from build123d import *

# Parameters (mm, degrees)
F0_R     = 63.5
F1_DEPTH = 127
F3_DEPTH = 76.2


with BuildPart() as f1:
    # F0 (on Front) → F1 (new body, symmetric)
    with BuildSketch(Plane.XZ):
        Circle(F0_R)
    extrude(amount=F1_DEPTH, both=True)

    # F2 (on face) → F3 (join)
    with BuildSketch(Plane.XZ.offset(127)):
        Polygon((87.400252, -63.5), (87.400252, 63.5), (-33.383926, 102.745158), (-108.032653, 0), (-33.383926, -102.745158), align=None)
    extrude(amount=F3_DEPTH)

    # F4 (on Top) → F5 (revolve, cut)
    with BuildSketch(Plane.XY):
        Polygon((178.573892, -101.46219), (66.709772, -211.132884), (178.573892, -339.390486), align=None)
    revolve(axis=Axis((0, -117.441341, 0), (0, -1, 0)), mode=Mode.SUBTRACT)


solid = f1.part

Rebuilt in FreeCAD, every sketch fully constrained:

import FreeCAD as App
import Part
import Sketcher
from FreeCAD import Vector
Q = App.Units.Quantity

doc = App.newDocument("Part")
body = doc.addObject("PartDesign::Body", "Body")

# Sketch on XZ plane
sketch1 = doc.addObject("Sketcher::SketchObject", "Sketch")
body.addObject(sketch1)
sketch1.AttachmentSupport = (doc.XZ_Plane, [""])
sketch1.MapMode = "FlatFace"
sketch1.addGeometry(Part.Circle(Vector(0, 0, 0), Vector(0, 0, 1), 64), False)
sketch1.addConstraint([
    Sketcher.Constraint("Coincident", 0, 3, -1, 1),
    Sketcher.Constraint("Diameter", 0, Q("5 in")),
])
pad1 = doc.addObject("PartDesign::Pad", "Pad")
body.addObject(pad1)
pad1.Profile = sketch1
pad1.Length = Q("10 in")
pad1.Midplane = True

# Sketch on XZ plane
sketch2 = doc.addObject("Sketcher::SketchObject", "Sketch001")
body.addObject(sketch2)
sketch2.AttachmentSupport = (doc.XZ_Plane, [""])
sketch2.MapMode = "FlatFace"
sketch2.AttachmentOffset = App.Placement(Vector(0, 0, 5 * 25.4), App.Rotation())
sketch2.addGeometry([
    Part.LineSegment(Vector(87, -64, 0), Vector(87, 64, 0)),  # 0
    Part.LineSegment(Vector(87, 64, 0), Vector(-33, 103, 0)),  # 1
    Part.LineSegment(Vector(-33, 103, 0), Vector(-108, 0, 0)),  # 2
    Part.LineSegment(Vector(-108, 0, 0), Vector(-33, -103, 0)),  # 3
    Part.LineSegment(Vector(-33, -103, 0), Vector(87, -64, 0)),  # 4
], False)
sketch2.addConstraint([
    Sketcher.Constraint("Coincident", 0, 2, 1, 1),
    Sketcher.Constraint("Coincident", 1, 2, 2, 1),
    Sketcher.Constraint("Coincident", 2, 2, 3, 1),
    Sketcher.Constraint("Coincident", 3, 2, 4, 1),
    Sketcher.Constraint("Coincident", 4, 2, 0, 1),
    Sketcher.Constraint("Vertical", 0),
    Sketcher.Constraint("Symmetric", 1, 2, 3, 2, -1),
    Sketcher.Constraint("PointOnObject", 2, 2, -1),
    Sketcher.Constraint("Equal", 1, 2),
    Sketcher.Constraint("Equal", 3, 4),
    Sketcher.Constraint("DistanceY", 0, 1, 0, 2, Q("5 in")),
    Sketcher.Constraint("Distance", 1, Q("5 in")),
    Sketcher.Constraint("Angle", 1, Q("162 deg")),
    Sketcher.Constraint("DistanceX", -1, 1, 0, 2, 87.400252),
])
pad2 = doc.addObject("PartDesign::Pad", "Pad001")
body.addObject(pad2)
pad2.Profile = sketch2
pad2.Length = Q("3 in")

# Sketch on XY plane
sketch3 = doc.addObject("Sketcher::SketchObject", "Sketch002")
body.addObject(sketch3)
sketch3.AttachmentSupport = (doc.XY_Plane, [""])
sketch3.MapMode = "FlatFace"
sketch3.addGeometry([
    Part.LineSegment(Vector(179, -101, 0), Vector(67, -211, 0)),
    Part.LineSegment(Vector(67, -211, 0), Vector(179, -339, 0)),
    Part.LineSegment(Vector(179, -339, 0), Vector(179, -101, 0)),
], False)
sketch3.addConstraint([
    Sketcher.Constraint("Coincident", 0, 2, 1, 1),
    Sketcher.Constraint("Coincident", 1, 2, 2, 1),
    Sketcher.Constraint("Coincident", 2, 2, 0, 1),
    Sketcher.Constraint("Vertical", 2),
    Sketcher.Constraint("DistanceY", 2, 1, 2, 2, 237.928296),
    Sketcher.Constraint("DistanceX", -1, 1, 0, 2, 66.709772),
    Sketcher.Constraint("DistanceX", -1, 1, 1, 2, 178.573892),
    Sketcher.Constraint("DistanceY", 2, 2, -1, 1, 101.46219),
    Sketcher.Constraint("Distance", 0, 156.656447),
])
groove = doc.addObject("PartDesign::Groove", "Groove")
body.addObject(groove)
groove.Profile = sketch3
groove.ReferenceAxis = (sketch3, ["V_Axis"])
groove.Angle = 360

doc.recompute()
